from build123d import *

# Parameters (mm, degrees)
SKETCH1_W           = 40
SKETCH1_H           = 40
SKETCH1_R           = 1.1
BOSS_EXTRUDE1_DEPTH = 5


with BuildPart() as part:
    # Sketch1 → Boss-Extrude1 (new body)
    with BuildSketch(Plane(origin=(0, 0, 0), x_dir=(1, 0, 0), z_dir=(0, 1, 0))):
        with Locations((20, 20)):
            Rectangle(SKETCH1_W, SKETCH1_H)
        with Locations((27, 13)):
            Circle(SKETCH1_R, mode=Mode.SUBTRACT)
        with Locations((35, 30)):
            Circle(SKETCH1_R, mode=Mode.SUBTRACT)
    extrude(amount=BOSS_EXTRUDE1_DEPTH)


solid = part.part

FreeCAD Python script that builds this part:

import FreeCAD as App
import Part
import Sketcher


def add_polygon(sketch, points):
    """Adds a closed chain of lines whose ends are joined by coincident constraints."""
    first, n = sketch.GeometryCount, len(points)
    for a, b in zip(points, points[1:] + points[:1]):
        sketch.addGeometry(Part.LineSegment(App.Vector(*a, 0), App.Vector(*b, 0)), False)
    for i in range(n):
        sketch.addConstraint(Sketcher.Constraint("Coincident", first + i, 2, first + (i + 1) % n, 1))

doc = App.newDocument("Part")
body = doc.addObject("PartDesign::Body", "Body")

# Sketch on XZ plane
sketch1 = body.newObject("Sketcher::SketchObject", "Sketch")
sketch1.AttachmentSupport = (doc.getObject("XZ_Plane"), [""])
sketch1.MapMode = "FlatFace"
add_polygon(sketch1, [(0, -40), (0, 0), (40, 0), (40, -40)])  # lines 0-3
sketch1.addGeometry(Part.Circle(App.Vector(27, -13, 0), App.Vector(0, 0, 1), 1.1), False)  # 4
sketch1.addGeometry(Part.Circle(App.Vector(35, -30, 0), App.Vector(0, 0, 1), 1.1), False)  # 5
sketch1.addConstraint([
    Sketcher.Constraint("Vertical", 0),
    Sketcher.Constraint("Horizontal", 1),
    Sketcher.Constraint("Vertical", 2),
    Sketcher.Constraint("Horizontal", 3),
    Sketcher.Constraint("Coincident", 0, 2, -1, 1),
    Sketcher.Constraint("Equal", 4, 5),
    Sketcher.Constraint("Equal", 3, 0),
    Sketcher.Constraint("Diameter", 4, 2.2),
    Sketcher.Constraint("DistanceX", 1, 1, 1, 2, 40.0),
    Sketcher.Constraint("DistanceX", -1, 1, 4, 3, 27.0),
    Sketcher.Constraint("DistanceY", 4, 3, -1, 1, 13.0),
    Sketcher.Constraint("DistanceX", -1, 1, 5, 3, 35.0),
    Sketcher.Constraint("DistanceY", 5, 3, -1, 1, 30.0),
])
pad1 = body.newObject("PartDesign::Pad", "Pad")
pad1.Profile = sketch1
pad1.Length = 5
pad1.Reversed = True

doc.recompute()
